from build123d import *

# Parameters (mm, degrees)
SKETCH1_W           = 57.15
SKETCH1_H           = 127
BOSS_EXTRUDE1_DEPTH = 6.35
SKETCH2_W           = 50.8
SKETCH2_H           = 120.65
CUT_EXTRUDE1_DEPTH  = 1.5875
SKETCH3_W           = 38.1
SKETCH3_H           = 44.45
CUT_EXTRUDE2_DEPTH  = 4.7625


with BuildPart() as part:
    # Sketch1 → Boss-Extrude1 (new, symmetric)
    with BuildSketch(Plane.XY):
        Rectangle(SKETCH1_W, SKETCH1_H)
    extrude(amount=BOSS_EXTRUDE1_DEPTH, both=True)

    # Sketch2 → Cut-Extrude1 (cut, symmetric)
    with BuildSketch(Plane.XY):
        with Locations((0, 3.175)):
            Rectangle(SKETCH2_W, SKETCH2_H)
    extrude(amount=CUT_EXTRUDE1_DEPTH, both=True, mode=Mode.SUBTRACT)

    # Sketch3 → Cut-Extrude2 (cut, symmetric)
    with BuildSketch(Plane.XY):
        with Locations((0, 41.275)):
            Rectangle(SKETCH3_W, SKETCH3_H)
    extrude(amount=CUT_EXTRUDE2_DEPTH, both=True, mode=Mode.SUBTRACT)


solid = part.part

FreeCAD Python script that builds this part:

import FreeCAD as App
import Part
import Sketcher

V = App.Vector
Q = App.Units.Quantity

doc = App.newDocument("Part")
body = doc.addObject("PartDesign::Body", "Body")

# Sketch on XY plane
sketch1 = body.newObject("Sketcher::SketchObject", "Sketch")
sketch1.AttachmentSupport = (doc.getObject("XY_Plane"), [""])
sketch1.MapMode = "FlatFace"
sketch1.addGeometry([
    Part.LineSegment(V(-28.575, 63.5, 0), V(-28.575, -63.5, 0)),
    Part.LineSegment(V(-28.575, -63.5, 0), V(28.575, -63.5, 0)),
    Part.LineSegment(V(28.575, -63.5, 0), V(28.575, 63.5, 0)),
    Part.LineSegment(V(28.575, 63.5, 0), V(-28.575, 63.5, 0)),
], False)
sketch1.addConstraint([
    Sketcher.Constraint("Coincident", 0, 2, 1, 1),
    Sketcher.Constraint("Coincident", 1, 2, 2, 1),
    Sketcher.Constraint("Coincident", 2, 2, 3, 1),
    Sketcher.Constraint("Coincident", 3, 2, 0, 1),
    Sketcher.Constraint("Vertical", 0),
    Sketcher.Constraint("Horizontal", 1),
    Sketcher.Constraint("Vertical", 2),
    Sketcher.Constraint("Horizontal", 3),
    Sketcher.Constraint("Symmetric", 0, 2, 2, 2, -1, 1),
    Sketcher.Constraint("DistanceY", 0, 2, 0, 1, Q("5 in")),
    Sketcher.Constraint("DistanceX", 1, 1, 1, 2, Q("2.25 in")),
])
pad1 = body.newObject("PartDesign::Pad", "Pad")
pad1.Profile = sketch1
pad1.Length = Q("0.5 in")
pad1.Midplane = True

# Sketch on XY plane
sketch2 = body.newObject("Sketcher::SketchObject", "Sketch001")
sketch2.AttachmentSupport = (doc.getObject("XY_Plane"), [""])
sketch2.MapMode = "FlatFace"
sketch2.addGeometry([
    Part.LineSegment(V(-25.4, 63.5, 0), V(-25.4, -57.15, 0)),
    Part.LineSegment(V(-25.4, -57.15, 0), V(25.4, -57.15, 0)),
    Part.LineSegment(V(25.4, -57.15, 0), V(25.4, 63.5, 0)),
    Part.LineSegment(V(25.4, 63.5, 0), V(-25.4, 63.5, 0)),
], False)
sketch2.addConstraint([
    Sketcher.Constraint("Coincident", 0, 2, 1, 1),
    Sketcher.Constraint("Coincident", 1, 2, 2, 1),
    Sketcher.Constraint("Coincident", 2, 2, 3, 1),
    Sketcher.Constraint("Coincident", 3, 2, 0, 1),
    Sketcher.Constraint("Vertical", 0),
    Sketcher.Constraint("Horizontal", 1),
    Sketcher.Constraint("Vertical", 2),
    Sketcher.Constraint("Horizontal", 3),
    Sketcher.Constraint("DistanceX", 1, 1, 1, 2, Q("2 in")),
    Sketcher.Constraint("DistanceX", 0, 2, -1, 1, Q("1 in")),
    Sketcher.Constraint("DistanceY", 0, 2, 0, 1, Q("4.75 in")),
    Sketcher.Constraint("DistanceY", -1, 1, 2, 2, Q("2.5 in")),
])
pocket1 = body.newObject("PartDesign::Pocket", "Pocket")
pocket1.Profile = sketch2
pocket1.Length = Q("0.125 in")
pocket1.Midplane = True

# Sketch on XY plane
sketch3 = body.newObject("Sketcher::SketchObject", "Sketch002")
sketch3.AttachmentSupport = (doc.getObject("XY_Plane"), [""])
sketch3.MapMode = "FlatFace"
sketch3.addGeometry([
    Part.LineSegment(V(-19.05, 63.5, 0), V(-19.05, 19.05, 0)),
    Part.LineSegment(V(-19.05, 19.05, 0), V(19.05, 19.05, 0)),
    Part.LineSegment(V(19.05, 19.05, 0), V(19.05, 63.5, 0)),
    Part.LineSegment(V(19.05, 63.5, 0), V(-19.05, 63.5, 0)),
], False)
sketch3.addConstraint([
    Sketcher.Constraint("Coincident", 0, 2, 1, 1),
    Sketcher.Constraint("Coincident", 1, 2, 2, 1),
    Sketcher.Constraint("Coincident", 2, 2, 3, 1),
    Sketcher.Constraint("Coincident", 3, 2, 0, 1),
    Sketcher.Constraint("Vertical", 0),
    Sketcher.Constraint("Horizontal", 1),
    Sketcher.Constraint("Vertical", 2),
    Sketcher.Constraint("Horizontal", 3),
    Sketcher.Constraint("DistanceX", 1, 1, 1, 2, Q("1.5 in")),
    Sketcher.Constraint("DistanceY", 0, 2, 0, 1, Q("1.75 in")),
    Sketcher.Constraint("DistanceY", -1, 1, 2, 2, Q("2.5 in")),
    Sketcher.Constraint("DistanceX", 0, 2, -1, 1, Q("0.75 in")),
])
pocket2 = body.newObject("PartDesign::Pocket", "Pocket001")
pocket2.Profile = sketch3
pocket2.Length = Q("0.375 in")
pocket2.Midplane = True

doc.recompute()
